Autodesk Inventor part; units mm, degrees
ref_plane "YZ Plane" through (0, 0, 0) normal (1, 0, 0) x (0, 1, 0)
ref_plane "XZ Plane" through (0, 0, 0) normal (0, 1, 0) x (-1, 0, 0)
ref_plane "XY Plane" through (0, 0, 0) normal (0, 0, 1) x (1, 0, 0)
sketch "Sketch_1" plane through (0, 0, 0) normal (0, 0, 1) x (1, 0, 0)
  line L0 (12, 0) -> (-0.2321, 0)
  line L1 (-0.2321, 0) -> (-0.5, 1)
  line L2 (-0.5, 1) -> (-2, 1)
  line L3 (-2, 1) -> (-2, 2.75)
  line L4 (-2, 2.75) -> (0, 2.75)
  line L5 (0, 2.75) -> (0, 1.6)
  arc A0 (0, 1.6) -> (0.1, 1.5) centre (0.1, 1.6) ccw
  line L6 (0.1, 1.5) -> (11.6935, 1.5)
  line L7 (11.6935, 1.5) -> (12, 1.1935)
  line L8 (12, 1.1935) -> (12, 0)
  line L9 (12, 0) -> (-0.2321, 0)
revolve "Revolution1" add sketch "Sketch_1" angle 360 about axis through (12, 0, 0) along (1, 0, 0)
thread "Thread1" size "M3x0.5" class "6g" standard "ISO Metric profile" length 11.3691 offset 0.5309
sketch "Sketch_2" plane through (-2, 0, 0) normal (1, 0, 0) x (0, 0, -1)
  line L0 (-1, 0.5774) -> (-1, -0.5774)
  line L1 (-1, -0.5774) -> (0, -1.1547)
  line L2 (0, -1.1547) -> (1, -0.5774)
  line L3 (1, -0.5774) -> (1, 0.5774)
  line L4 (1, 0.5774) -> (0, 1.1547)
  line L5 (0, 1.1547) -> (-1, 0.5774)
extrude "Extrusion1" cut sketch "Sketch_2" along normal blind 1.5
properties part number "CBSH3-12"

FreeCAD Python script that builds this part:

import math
import FreeCAD as App
import Part
import Sketcher
from FreeCAD import Vector
Q = App.Units.Quantity

doc = App.newDocument("Part")
body = doc.addObject("PartDesign::Body", "Body")

sketch1 = body.newObject("Sketcher::SketchObject", "Sketch")
sketch1.AttachmentSupport = (doc.getObject("XY_Plane"), [""])
sketch1.MapMode = "FlatFace"
sketch1.addGeometry([
    Part.LineSegment(Vector(-0.23, 0, 0), Vector(12, 0, 0)),
    Part.LineSegment(Vector(12, 0, 0), Vector(12, 1.19, 0)),
    Part.LineSegment(Vector(12, 1.19, 0), Vector(11.69, 1.5, 0)),
    Part.LineSegment(Vector(11.69, 1.5, 0), Vector(0.1, 1.5, 0)),
    Part.ArcOfCircle(Part.Circle(Vector(0.1, 1.6, 0), Vector(0, 0, 1), 0.1), math.radians(180), math.radians(270)),
    Part.LineSegment(Vector(0, 1.6, 0), Vector(0, 2.75, 0)),
    Part.LineSegment(Vector(0, 2.75, 0), Vector(-2, 2.75, 0)),
    Part.LineSegment(Vector(-2, 2.75, 0), Vector(-2, 1, 0)),
    Part.LineSegment(Vector(-2, 1, 0), Vector(-0.5, 1, 0)),
    Part.LineSegment(Vector(-0.5, 1, 0), Vector(-0.23, 0, 0)),
], False)
sketch1.addConstraint([
    Sketcher.Constraint("Coincident", 0, 2, 1, 1),
    Sketcher.Constraint("Coincident", 1, 2, 2, 1),
    Sketcher.Constraint("Coincident", 2, 2, 3, 1),
    Sketcher.Constraint("Tangent", 3, 2, 4, 2),
    Sketcher.Constraint("Tangent", 4, 1, 5, 1),
    Sketcher.Constraint("Coincident", 5, 2, 6, 1),
    Sketcher.Constraint("Coincident", 6, 2, 7, 1),
    Sketcher.Constraint("Coincident", 7, 2, 8, 1),
    Sketcher.Constraint("Coincident", 8, 2, 9, 1),
    Sketcher.Constraint("Coincident", 9, 2, 0, 1),
    Sketcher.Constraint("Horizontal", 0),
    Sketcher.Constraint("Vertical", 1),
    Sketcher.Constraint("Horizontal", 3),
    Sketcher.Constraint("Vertical", 5),
    Sketcher.Constraint("Horizontal", 6),
    Sketcher.Constraint("Vertical", 7),
    Sketcher.Constraint("Horizontal", 8),
    Sketcher.Constraint("PointOnObject", 0, 2, -1),
    Sketcher.Constraint("PointOnObject", 4, 1, -2),
    Sketcher.Constraint("Radius", 4, 0.1),
    Sketcher.Constraint("DistanceX", 6, 2, 6, 1, 2.0),
    Sketcher.Constraint("Angle", 2, Q("135 deg")),
    Sketcher.Constraint("DistanceX", 8, 1, 8, 2, 1.5),
    Sketcher.Constraint("DistanceX", -1, 1, 0, 2, 12.0),
    Sketcher.Constraint("DistanceY", -1, 1, 7, 2, 1.0),
    Sketcher.Constraint("DistanceY", 5, 1, 5, 2, 1.15),
    Sketcher.Constraint("DistanceY", 7, 2, 7, 1, 1.75),
    Sketcher.Constraint("DistanceX", 0, 1, 0, 2, 12.232),
    Sketcher.Constraint("DistanceX", 3, 2, 3, 1, 11.5935),
])
revolution = body.newObject("PartDesign::Revolution", "Revolution")
revolution.Profile = sketch1
revolution.ReferenceAxis = (sketch1, ["H_Axis"])
revolution.Angle = 360

sketch2 = body.newObject("Sketcher::SketchObject", "Sketch001")
sketch2.AttachmentSupport = (doc.getObject("YZ_Plane"), [""])
sketch2.MapMode = "FlatFace"
sketch2.AttachmentOffset = App.Placement(Vector(0, 0, -2), App.Rotation())
sketch2.addGeometry([
    Part.LineSegment(Vector(1.2, 0, 0), Vector(0.6, 1, 0)),
    Part.LineSegment(Vector(0.6, 1, 0), Vector(-0.6, 1, 0)),
    Part.LineSegment(Vector(-0.6, 1, 0), Vector(-1.2, 0, 0)),
    Part.LineSegment(Vector(-1.2, 0, 0), Vector(-0.6, -1, 0)),
    Part.LineSegment(Vector(-0.6, -1, 0), Vector(0.6, -1, 0)),
    Part.LineSegment(Vector(0.6, -1, 0), Vector(1.2, 0, 0)),
], False)
sketch2.addConstraint([
    Sketcher.Constraint("Coincident", 0, 2, 1, 1),
    Sketcher.Constraint("Coincident", 1, 2, 2, 1),
    Sketcher.Constraint("Coincident", 2, 2, 3, 1),
    Sketcher.Constraint("Coincident", 3, 2, 4, 1),
    Sketcher.Constraint("Coincident", 4, 2, 5, 1),
    Sketcher.Constraint("Coincident", 5, 2, 0, 1),
    Sketcher.Constraint("Horizontal", 1),
    Sketcher.Constraint("Horizontal", 4),
    Sketcher.Constraint("Symmetric", 0, 2, 3, 2, -1, 1),
    Sketcher.Constraint("Symmetric", 2, 2, 5, 2, -1, 1),
    Sketcher.Constraint("PointOnObject", 2, 2, -1),
    Sketcher.Constraint("Parallel", 2, 5),
    Sketcher.Constraint("Vertical", 1, 2, 3, 2),
    Sketcher.Constraint("DistanceY", -1, 1, 0, 2, 1.0),
    Sketcher.Constraint("DistanceX", 1, 2, 1, 1, 1.1548),
    Sketcher.Constraint("DistanceX", 2, 2, 0, 2, 1.732),
])
pocket1 = body.newObject("PartDesign::Pocket", "Pocket")
pocket1.Profile = sketch2
pocket1.Length = 1.5
pocket1.Reversed = True

doc.recompute()
